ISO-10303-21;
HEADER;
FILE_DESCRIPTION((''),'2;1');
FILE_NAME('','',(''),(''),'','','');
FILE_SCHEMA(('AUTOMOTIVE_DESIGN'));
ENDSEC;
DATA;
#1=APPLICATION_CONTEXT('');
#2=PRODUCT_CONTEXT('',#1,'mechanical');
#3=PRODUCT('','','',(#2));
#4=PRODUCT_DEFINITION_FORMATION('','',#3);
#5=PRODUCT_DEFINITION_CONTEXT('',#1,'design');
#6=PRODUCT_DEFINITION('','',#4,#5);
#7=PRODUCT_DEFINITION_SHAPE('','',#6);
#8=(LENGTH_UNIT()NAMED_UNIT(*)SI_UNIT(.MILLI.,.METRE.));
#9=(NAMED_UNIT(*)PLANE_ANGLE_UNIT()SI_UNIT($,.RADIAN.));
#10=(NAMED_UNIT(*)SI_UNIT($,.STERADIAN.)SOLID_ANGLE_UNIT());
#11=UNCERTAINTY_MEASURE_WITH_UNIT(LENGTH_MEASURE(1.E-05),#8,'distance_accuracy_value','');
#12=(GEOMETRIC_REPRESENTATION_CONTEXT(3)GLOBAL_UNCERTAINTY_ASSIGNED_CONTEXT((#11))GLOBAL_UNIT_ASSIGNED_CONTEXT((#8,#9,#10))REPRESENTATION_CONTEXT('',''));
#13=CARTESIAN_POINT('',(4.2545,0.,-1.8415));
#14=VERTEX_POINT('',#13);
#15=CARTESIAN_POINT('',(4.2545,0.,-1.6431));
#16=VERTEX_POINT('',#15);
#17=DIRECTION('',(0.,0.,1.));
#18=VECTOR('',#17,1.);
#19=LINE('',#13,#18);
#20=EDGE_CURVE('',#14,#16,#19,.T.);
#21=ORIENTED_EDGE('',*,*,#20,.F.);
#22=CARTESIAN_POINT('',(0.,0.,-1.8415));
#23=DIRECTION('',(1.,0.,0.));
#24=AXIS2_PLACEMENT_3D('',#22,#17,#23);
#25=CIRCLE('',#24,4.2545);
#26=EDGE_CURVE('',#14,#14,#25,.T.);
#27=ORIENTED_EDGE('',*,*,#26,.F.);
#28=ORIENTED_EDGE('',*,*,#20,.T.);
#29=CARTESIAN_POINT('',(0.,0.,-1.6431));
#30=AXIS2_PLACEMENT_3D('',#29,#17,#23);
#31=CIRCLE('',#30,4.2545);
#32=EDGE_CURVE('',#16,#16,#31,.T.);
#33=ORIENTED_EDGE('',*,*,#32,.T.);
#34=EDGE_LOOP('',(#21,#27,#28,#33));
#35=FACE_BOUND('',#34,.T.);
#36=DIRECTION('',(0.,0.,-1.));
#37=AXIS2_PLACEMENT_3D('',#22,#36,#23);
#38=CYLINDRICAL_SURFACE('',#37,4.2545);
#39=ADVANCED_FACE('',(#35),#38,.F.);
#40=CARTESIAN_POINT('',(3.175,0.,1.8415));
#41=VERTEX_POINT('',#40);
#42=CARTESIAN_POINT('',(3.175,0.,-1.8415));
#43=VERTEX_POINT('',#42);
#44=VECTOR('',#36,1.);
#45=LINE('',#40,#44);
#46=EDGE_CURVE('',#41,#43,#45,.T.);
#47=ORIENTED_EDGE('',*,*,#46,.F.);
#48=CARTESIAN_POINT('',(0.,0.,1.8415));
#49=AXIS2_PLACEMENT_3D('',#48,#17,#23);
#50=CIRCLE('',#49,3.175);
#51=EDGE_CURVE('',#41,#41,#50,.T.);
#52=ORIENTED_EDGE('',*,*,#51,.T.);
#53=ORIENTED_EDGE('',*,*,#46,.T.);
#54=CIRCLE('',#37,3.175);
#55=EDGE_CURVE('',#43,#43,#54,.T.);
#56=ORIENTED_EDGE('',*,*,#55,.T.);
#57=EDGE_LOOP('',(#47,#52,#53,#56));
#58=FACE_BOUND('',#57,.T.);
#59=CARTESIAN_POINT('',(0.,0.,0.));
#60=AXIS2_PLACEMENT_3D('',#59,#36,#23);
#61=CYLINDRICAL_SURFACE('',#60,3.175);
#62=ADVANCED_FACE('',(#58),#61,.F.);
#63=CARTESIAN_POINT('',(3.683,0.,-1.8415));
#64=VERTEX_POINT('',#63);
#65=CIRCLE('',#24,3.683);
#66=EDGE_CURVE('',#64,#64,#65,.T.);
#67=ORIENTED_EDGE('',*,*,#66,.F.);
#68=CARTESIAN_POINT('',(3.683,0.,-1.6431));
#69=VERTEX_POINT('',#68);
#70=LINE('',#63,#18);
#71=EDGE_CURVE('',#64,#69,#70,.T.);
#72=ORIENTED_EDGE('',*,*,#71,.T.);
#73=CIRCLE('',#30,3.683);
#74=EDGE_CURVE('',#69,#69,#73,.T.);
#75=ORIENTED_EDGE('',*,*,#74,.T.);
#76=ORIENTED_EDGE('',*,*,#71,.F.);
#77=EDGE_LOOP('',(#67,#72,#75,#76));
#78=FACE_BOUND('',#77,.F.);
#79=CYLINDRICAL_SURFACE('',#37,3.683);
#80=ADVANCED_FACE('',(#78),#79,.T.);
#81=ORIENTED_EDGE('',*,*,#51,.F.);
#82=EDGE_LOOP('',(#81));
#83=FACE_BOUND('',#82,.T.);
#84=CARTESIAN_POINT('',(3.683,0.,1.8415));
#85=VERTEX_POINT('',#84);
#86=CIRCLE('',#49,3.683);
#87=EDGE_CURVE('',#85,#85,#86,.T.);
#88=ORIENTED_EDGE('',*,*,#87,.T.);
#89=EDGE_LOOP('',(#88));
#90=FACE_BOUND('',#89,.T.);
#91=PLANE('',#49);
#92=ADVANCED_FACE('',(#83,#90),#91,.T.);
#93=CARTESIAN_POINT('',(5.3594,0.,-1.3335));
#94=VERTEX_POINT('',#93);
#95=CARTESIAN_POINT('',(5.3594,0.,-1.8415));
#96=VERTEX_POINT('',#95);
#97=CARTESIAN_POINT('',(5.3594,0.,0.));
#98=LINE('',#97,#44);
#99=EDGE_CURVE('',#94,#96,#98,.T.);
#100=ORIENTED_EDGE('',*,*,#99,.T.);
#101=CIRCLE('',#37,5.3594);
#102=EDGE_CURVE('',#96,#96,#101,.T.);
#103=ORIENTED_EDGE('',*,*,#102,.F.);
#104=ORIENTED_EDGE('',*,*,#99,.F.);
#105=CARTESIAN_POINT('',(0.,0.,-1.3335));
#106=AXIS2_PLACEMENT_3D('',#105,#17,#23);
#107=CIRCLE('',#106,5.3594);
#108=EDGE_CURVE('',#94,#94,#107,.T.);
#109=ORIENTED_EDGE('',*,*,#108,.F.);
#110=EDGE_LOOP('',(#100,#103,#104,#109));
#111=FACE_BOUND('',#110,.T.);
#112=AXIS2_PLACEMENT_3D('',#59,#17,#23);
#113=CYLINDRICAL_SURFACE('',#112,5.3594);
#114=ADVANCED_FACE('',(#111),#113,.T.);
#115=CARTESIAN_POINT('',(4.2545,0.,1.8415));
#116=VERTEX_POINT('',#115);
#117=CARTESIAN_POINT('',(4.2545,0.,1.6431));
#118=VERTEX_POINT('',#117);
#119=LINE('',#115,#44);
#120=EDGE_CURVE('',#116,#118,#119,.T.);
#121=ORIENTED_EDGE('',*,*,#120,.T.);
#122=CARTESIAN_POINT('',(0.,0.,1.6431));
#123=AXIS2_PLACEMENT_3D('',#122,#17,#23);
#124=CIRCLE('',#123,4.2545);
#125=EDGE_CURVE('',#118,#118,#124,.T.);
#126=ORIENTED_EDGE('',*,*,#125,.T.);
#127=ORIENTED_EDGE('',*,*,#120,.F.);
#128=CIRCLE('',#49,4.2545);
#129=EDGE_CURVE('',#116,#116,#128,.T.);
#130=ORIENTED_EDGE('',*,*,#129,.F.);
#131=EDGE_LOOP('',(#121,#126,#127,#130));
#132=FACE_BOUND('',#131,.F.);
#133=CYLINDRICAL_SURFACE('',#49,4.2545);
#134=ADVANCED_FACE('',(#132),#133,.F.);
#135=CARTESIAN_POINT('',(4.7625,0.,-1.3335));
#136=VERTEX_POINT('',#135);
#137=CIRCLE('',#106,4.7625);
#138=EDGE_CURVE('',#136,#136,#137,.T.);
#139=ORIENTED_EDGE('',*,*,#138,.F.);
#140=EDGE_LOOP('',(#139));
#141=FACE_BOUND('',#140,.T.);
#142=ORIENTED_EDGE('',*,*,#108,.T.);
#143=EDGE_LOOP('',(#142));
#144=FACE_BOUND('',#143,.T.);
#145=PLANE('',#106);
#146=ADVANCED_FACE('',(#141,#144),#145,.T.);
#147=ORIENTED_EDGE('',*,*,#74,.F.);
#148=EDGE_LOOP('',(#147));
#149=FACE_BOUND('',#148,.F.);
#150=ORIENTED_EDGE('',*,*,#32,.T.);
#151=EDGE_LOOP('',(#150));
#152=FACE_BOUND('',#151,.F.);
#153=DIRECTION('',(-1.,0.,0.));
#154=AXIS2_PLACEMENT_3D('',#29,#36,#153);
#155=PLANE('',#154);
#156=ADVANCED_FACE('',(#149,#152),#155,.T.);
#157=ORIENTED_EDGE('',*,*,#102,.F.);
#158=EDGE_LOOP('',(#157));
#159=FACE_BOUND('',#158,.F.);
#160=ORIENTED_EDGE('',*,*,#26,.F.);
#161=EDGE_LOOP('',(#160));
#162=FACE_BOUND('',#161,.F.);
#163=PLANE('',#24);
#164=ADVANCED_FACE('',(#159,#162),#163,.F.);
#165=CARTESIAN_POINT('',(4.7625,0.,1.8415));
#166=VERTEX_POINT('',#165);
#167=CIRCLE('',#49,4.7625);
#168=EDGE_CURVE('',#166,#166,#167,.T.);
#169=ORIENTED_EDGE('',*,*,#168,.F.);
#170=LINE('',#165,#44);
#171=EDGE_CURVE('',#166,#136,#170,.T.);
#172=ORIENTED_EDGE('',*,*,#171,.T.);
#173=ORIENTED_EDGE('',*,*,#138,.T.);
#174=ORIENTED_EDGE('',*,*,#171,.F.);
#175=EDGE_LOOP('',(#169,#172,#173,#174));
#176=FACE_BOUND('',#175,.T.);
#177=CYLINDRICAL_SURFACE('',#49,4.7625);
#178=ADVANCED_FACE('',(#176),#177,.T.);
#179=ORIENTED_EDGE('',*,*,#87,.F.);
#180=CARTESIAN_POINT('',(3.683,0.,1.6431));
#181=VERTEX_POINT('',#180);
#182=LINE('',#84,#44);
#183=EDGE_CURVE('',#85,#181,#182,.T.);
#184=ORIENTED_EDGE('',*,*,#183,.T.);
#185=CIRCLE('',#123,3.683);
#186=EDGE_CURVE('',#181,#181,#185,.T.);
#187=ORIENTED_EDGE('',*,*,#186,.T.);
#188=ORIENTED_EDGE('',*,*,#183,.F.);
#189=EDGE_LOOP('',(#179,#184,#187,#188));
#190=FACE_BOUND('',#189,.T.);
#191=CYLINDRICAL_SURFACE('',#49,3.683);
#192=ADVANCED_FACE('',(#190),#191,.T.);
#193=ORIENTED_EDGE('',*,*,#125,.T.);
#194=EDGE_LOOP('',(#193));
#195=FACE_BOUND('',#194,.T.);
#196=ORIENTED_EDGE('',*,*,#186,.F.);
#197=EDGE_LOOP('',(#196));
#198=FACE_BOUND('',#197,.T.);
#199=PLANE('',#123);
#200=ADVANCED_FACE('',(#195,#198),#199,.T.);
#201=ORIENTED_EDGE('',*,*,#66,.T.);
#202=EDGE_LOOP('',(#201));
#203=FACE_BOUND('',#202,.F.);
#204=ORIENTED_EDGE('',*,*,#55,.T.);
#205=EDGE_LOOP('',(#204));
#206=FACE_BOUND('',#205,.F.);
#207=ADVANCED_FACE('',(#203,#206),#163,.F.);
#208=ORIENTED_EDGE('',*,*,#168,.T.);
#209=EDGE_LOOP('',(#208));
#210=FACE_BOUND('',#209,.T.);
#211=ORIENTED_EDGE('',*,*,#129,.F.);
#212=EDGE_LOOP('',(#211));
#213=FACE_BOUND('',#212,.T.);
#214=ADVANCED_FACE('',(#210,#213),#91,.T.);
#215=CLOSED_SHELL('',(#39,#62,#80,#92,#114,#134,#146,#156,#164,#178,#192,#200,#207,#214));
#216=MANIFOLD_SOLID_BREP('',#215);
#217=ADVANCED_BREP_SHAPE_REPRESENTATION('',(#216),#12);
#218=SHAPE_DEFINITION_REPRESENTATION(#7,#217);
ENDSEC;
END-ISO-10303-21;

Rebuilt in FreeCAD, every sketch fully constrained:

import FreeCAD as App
import Part
import Sketcher

V = App.Vector
Q = App.Units.Quantity

doc = App.newDocument("Part")
body = doc.addObject("PartDesign::Body", "Body")

# Sketch on XY plane
sketch1 = body.newObject("Sketcher::SketchObject", "Sketch")
sketch1.AttachmentSupport = (doc.getObject("XY_Plane"), [""])
sketch1.MapMode = "FlatFace"
sketch1.addGeometry(Part.Circle(V(0, 0, 0), V(0, 0, 1), 5.4), False)
sketch1.addGeometry(Part.Circle(V(0, 0, 0), V(0, 0, 1), 3.2), False)
sketch1.addConstraint(Sketcher.Constraint("Coincident", 0, 3, -1, 1))
sketch1.addConstraint(Sketcher.Constraint("Coincident", 1, 3, -1, 1))
sketch1.addConstraint(Sketcher.Constraint("Diameter", 1, Q("0.25 in")))
sketch1.addConstraint(Sketcher.Constraint("Diameter", 0, Q("0.422 in")))
pad1 = body.newObject("PartDesign::Pad", "Pad")
pad1.Profile = sketch1
pad1.Length = Q("0.145 in")
pad1.Midplane = True

# Sketch on XY plane
sketch2 = body.newObject("Sketcher::SketchObject", "Sketch001")
sketch2.AttachmentSupport = (doc.getObject("XY_Plane"), [""])
sketch2.MapMode = "FlatFace"
sketch2.AttachmentOffset = App.Placement(V(0, 0, 0.0725 * 25.4), App.Rotation())
sketch2.addGeometry(Part.Circle(V(0, 0, 0), V(0, 0, 1), 5.4), False)
sketch2.addGeometry(Part.Circle(V(0, 0, 0), V(0, 0, 1), 4.8), False)
sketch2.addConstraint(Sketcher.Constraint("Coincident", 0, 3, -1, 1))
sketch2.addConstraint(Sketcher.Constraint("Coincident", 1, 3, -1, 1))
sketch2.addConstraint(Sketcher.Constraint("Diameter", 1, Q("0.375 in")))
sketch2.addConstraint(Sketcher.Constraint("Diameter", 0, Q("0.422 in")))
pocket1 = body.newObject("PartDesign::Pocket", "Pocket")
pocket1.Profile = sketch2
pocket1.Length = Q("0.125 in")

# Sketch on XY plane
sketch3 = body.newObject("Sketcher::SketchObject", "Sketch002")
sketch3.AttachmentSupport = (doc.getObject("XY_Plane"), [""])
sketch3.MapMode = "FlatFace"
sketch3.AttachmentOffset = App.Placement(V(0, 0, 0.0725 * 25.4), App.Rotation())
sketch3.addGeometry(Part.Circle(V(0, 0, 0), V(0, 0, 1), 4.3), False)
sketch3.addGeometry(Part.Circle(V(0, 0, 0), V(0, 0, 1), 3.7), False)
sketch3.addConstraint(Sketcher.Constraint("Coincident", 0, 3, -1, 1))
sketch3.addConstraint(Sketcher.Constraint("Coincident", 1, 3, -1, 1))
sketch3.addConstraint(Sketcher.Constraint("Diameter", 1, Q("0.29 in")))
sketch3.addConstraint(Sketcher.Constraint("Diameter", 0, Q("0.335 in")))
pocket2 = body.newObject("PartDesign::Pocket", "Pocket001")
pocket2.Profile = sketch3
pocket2.Length = Q("0.007811 in")
doc.recompute()

mirrored = body.newObject("PartDesign::Mirrored", "Mirrored")
mirrored.Originals = [pocket2]
mirrored.MirrorPlane = (doc.getObject("XY_Plane"), [""])
body.Tip = mirrored

doc.recompute()
